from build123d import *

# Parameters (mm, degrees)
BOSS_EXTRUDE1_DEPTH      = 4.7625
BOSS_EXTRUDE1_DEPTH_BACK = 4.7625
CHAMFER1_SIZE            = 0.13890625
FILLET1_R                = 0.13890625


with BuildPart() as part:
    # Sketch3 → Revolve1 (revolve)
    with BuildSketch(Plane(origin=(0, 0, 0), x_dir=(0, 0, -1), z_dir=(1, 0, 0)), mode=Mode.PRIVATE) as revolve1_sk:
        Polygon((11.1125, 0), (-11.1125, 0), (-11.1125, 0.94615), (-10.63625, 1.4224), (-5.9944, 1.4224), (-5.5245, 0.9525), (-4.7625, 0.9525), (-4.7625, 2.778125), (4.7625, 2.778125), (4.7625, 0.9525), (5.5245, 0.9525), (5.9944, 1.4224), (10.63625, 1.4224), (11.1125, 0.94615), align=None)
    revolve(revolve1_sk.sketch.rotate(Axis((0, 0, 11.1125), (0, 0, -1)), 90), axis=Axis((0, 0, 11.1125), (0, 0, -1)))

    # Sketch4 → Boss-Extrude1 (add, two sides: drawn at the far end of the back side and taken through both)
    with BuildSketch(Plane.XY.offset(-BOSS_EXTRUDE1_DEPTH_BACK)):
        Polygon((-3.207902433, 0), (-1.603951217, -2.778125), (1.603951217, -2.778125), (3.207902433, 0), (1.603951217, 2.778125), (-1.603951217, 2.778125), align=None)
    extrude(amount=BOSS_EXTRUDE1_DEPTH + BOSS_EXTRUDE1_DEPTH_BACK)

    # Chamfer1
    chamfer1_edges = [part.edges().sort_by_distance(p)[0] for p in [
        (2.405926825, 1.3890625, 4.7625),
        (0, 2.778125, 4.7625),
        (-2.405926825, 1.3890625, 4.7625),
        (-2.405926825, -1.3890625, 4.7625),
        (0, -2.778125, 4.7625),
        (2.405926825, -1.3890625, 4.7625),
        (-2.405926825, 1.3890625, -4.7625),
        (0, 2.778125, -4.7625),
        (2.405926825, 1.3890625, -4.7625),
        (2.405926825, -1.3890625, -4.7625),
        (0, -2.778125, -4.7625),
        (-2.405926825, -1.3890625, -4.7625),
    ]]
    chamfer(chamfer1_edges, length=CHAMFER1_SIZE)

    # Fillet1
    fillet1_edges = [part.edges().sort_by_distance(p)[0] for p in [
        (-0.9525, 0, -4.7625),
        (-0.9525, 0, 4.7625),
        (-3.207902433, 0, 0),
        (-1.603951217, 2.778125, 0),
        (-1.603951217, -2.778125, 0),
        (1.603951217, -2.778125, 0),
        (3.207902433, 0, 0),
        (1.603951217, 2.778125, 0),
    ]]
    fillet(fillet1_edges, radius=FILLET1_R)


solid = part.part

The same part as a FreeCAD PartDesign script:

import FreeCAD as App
import Part
import Sketcher
Q = App.Units.Quantity


def edges_at(feature, points):
    """Names of the edges that pass closest to the given points."""
    edges = feature.Shape.Edges
    near = lambda p: min(range(len(edges)), key=lambda i: edges[i].distToShape(Part.Vertex(*p))[0])
    return sorted({f"Edge{near(p) + 1}" for p in points})


def add_polygon(sketch, points):
    """Adds a closed chain of lines whose ends are joined by coincident constraints."""
    first, n = sketch.GeometryCount, len(points)
    for a, b in zip(points, points[1:] + points[:1]):
        sketch.addGeometry(Part.LineSegment(App.Vector(*a, 0), App.Vector(*b, 0)), False)
    for i in range(n):
        sketch.addConstraint(Sketcher.Constraint("Coincident", first + i, 2, first + (i + 1) % n, 1))

doc = App.newDocument("Part")
params = doc.addObject("Spreadsheet::Sheet", "Params")
for row, (alias, value) in enumerate([
    ("sketch1_height", "0.03 in"),
    ("sketch1_height2", "0.875 in"),
    ("sketch1_height3", "0.375 in"),
    ("revolution_angle", "360 deg"),
    ("pad1_length", "0.1875 in"),
    ("pad1_length2", "0.1875 in"),
    ("chamfer_size", "0.138906 mm"),
    ("fillet_radius", "0.138906 mm"),
], start=1):
    params.set(f"A{row}", alias)
    params.set(f"B{row}", "=" + value)
    params.setAlias(f"B{row}", alias)

body = doc.addObject("PartDesign::Body", "Body")

sketch1 = doc.addObject("Sketcher::SketchObject", "Sketch")
body.addObject(sketch1)
sketch1.AttachmentSupport = (doc.YZ_Plane, [""])
sketch1.MapMode = "FlatFace"
add_polygon(sketch1, [(0, 11.1), (0, -11.1), (0.9, -11.1), (1.4, -10.6), (1.4, -6), (1, -5.5), (1, -4.8), (2.8, -4.8), (2.8, 4.8), (1, 4.8), (1, 5.5), (1.4, 6), (1.4, 10.6), (0.9, 11.1)])
sketch1.addConstraint([
    Sketcher.Constraint("Vertical", 0),
    Sketcher.Constraint("Horizontal", 1),
    Sketcher.Constraint("Vertical", 3),
    Sketcher.Constraint("Vertical", 5),
    Sketcher.Constraint("Horizontal", 6),
    Sketcher.Constraint("Vertical", 7),
    Sketcher.Constraint("Horizontal", 8),
    Sketcher.Constraint("Vertical", 9),
    Sketcher.Constraint("Vertical", 11),
    Sketcher.Constraint("Horizontal", 13),
    Sketcher.Constraint("Symmetric", 0, 2, 13, 2, -1, 1),
    Sketcher.Constraint("Symmetric", 5, 2, 8, 2, -1),
    Sketcher.Constraint("Symmetric", 3, 2, 10, 2, -1),
    Sketcher.Constraint("Perpendicular", 2, 4),
    Sketcher.Constraint("Perpendicular", 4, 10),
    Sketcher.Constraint("Perpendicular", 10, 12),
    Sketcher.Constraint("Vertical", 1, 2, 12, 2),
    Sketcher.Constraint("Equal", 5, 9),
    Sketcher.Constraint("DistanceY", 5, 1, 5, 2, Q("0.03 in")),
    Sketcher.Constraint("DistanceY", 0, 2, 0, 1, Q("0.875 in")),
    Sketcher.Constraint("DistanceY", 7, 1, 7, 2, Q("0.375 in")),
    Sketcher.Constraint("DistanceX", -1, 1, 2, 2, Q("0.056 in")),
    Sketcher.Constraint("DistanceY", 3, 2, -1, 1, Q("0.236 in")),
    Sketcher.Constraint("DistanceX", -1, 1, 6, 2, Q("0.109375 in")),
    Sketcher.Constraint("DistanceX", 1, 1, 1, 2, 0.94615),
])
sketch1.setExpression("Constraints[32]", "Params.sketch1_height")
sketch1.setExpression("Constraints[33]", "Params.sketch1_height2")
sketch1.setExpression("Constraints[34]", "Params.sketch1_height3")
revolution = doc.addObject("PartDesign::Revolution", "Revolution")
body.addObject(revolution)
revolution.Profile = sketch1
revolution.ReferenceAxis = (sketch1, ["V_Axis"])
revolution.setExpression("Angle", "Params.revolution_angle")

sketch2 = doc.addObject("Sketcher::SketchObject", "Sketch001")
body.addObject(sketch2)
sketch2.AttachmentSupport = (doc.XY_Plane, [""])
sketch2.MapMode = "FlatFace"
add_polygon(sketch2, [(-3.2, 0), (-1.6, -2.8), (1.6, -2.8), (3.2, 0), (1.6, 2.8), (-1.6, 2.8)])
sketch2.addConstraint([
    Sketcher.Constraint("Horizontal", 1),
    Sketcher.Constraint("Horizontal", 4),
    Sketcher.Constraint("Symmetric", 0, 2, 3, 2, -1, 1),
    Sketcher.Constraint("Symmetric", 2, 2, 5, 2, -1, 1),
    Sketcher.Constraint("PointOnObject", 2, 2, -1),
    Sketcher.Constraint("Parallel", 2, 5),
    Sketcher.Constraint("Vertical", 1, 2, 3, 2),
    Sketcher.Constraint("Angle", 0, Q("-60 deg")),
    Sketcher.Constraint("DistanceY", 0, 2, -1, 1, Q("0.109375 in")),
    Sketcher.Constraint("DistanceX", 1, 1, 1, 2, 3.207902),
])
pad1 = doc.addObject("PartDesign::Pad", "Pad")
body.addObject(pad1)
pad1.Profile = sketch2
pad1.Type = "TwoLengths"
pad1.setExpression("Length", "Params.pad1_length")
pad1.setExpression("Length2", "Params.pad1_length2")
doc.recompute()

chamfer = doc.addObject("PartDesign::Chamfer", "Chamfer")
body.addObject(chamfer)
chamfer.Base = (pad1, edges_at(pad1, [
    (2.406, 1.389, 4.763),
    (0, 2.778, 4.763),
    (-2.406, 1.389, 4.763),
    (-2.406, -1.389, 4.763),
    (0, -2.778, 4.763),
    (2.406, -1.389, 4.763),
    (-2.406, 1.389, -4.763),
    (0, 2.778, -4.763),
    (2.406, 1.389, -4.763),
    (2.406, -1.389, -4.763),
    (0, -2.778, -4.763),
    (-2.406, -1.389, -4.763),
]))
chamfer.setExpression("Size", "Params.chamfer_size")
doc.recompute()

fillet = doc.addObject("PartDesign::Fillet", "Fillet")
body.addObject(fillet)
fillet.Base = (chamfer, edges_at(chamfer, [
    (-0.953, 0, -4.763),
    (-0.953, 0, 4.763),
    (-3.208, 0, 0),
    (-1.604, 2.778, 0),
    (-1.604, -2.778, 0),
    (1.604, -2.778, 0),
    (3.208, 0, 0),
    (1.604, 2.778, 0),
]))
fillet.setExpression("Radius", "Params.fillet_radius")

doc.recompute()
